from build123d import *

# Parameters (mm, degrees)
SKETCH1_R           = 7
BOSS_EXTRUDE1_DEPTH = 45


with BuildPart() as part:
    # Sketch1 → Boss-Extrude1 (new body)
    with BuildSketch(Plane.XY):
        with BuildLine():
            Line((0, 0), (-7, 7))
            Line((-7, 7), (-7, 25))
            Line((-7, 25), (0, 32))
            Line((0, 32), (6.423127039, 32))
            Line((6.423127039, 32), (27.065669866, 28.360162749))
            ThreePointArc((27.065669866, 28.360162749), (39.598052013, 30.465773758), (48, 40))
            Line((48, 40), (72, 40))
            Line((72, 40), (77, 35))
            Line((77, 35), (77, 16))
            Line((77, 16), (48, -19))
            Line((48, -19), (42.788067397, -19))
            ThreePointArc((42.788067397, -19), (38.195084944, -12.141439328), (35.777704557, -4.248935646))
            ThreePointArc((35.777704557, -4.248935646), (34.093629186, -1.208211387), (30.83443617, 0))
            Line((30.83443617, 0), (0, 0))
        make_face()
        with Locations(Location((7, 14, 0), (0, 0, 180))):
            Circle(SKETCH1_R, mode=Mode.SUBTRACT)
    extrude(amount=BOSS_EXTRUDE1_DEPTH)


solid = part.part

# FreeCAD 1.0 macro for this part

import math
import FreeCAD as App
import Part
import Sketcher

V = App.Vector
Q = App.Units.Quantity

doc = App.newDocument("Part")
body = doc.addObject("PartDesign::Body", "Body")

# Sketch on XY plane
sketch1 = body.newObject("Sketcher::SketchObject", "Sketch")
sketch1.AttachmentSupport = (doc.getObject("XY_Plane"), [""])
sketch1.MapMode = "FlatFace"
sketch1.addGeometry([
    Part.LineSegment(V(-7, 7, 0), V(0, 0, 0)),  # 0
    Part.LineSegment(V(0, 0, 0), V(31, 0, 0)),  # 1
    Part.ArcOfCircle(Part.Circle(V(31, -5, 0), V(0, 0, 1), 5), math.radians(9), math.radians(90)),  # 2
    Part.ArcOfCircle(Part.Circle(V(64, 0, 0), V(0, 0, 1), 28), math.radians(-171), math.radians(-138)),  # 3
    Part.LineSegment(V(43, -19, 0), V(48, -19, 0)),  # 4
    Part.LineSegment(V(48, -19, 0), V(77, 16, 0)),  # 5
    Part.LineSegment(V(77, 16, 0), V(77, 35, 0)),  # 6
    Part.LineSegment(V(77, 35, 0), V(72, 40, 0)),  # 7
    Part.LineSegment(V(72, 40, 0), V(48, 40, 0)),  # 8
    Part.ArcOfCircle(Part.Circle(V(30, 47, 0), V(0, 0, 1), 19), math.radians(-100), math.radians(-22)),  # 9
    Part.LineSegment(V(27, 28, 0), V(6, 32, 0)),  # 10
    Part.LineSegment(V(6, 32, 0), V(0, 32, 0)),  # 11
    Part.LineSegment(V(0, 32, 0), V(-7, 25, 0)),  # 12
    Part.LineSegment(V(-7, 25, 0), V(-7, 7, 0)),  # 13
    Part.Circle(V(7, 14, 0), V(0, 0, 1), 7),  # 14
], False)
sketch1.addConstraint([
    Sketcher.Constraint("Coincident", 0, 2, 1, 1),
    Sketcher.Constraint("Tangent", 1, 2, 2, 2),
    Sketcher.Constraint("Tangent", 2, 1, 3, 1),
    Sketcher.Constraint("Coincident", 3, 2, 4, 1),
    Sketcher.Constraint("Coincident", 4, 2, 5, 1),
    Sketcher.Constraint("Coincident", 5, 2, 6, 1),
    Sketcher.Constraint("Coincident", 6, 2, 7, 1),
    Sketcher.Constraint("Coincident", 7, 2, 8, 1),
    Sketcher.Constraint("Coincident", 8, 2, 9, 2),
    Sketcher.Constraint("Tangent", 9, 1, 10, 1),
    Sketcher.Constraint("Coincident", 10, 2, 11, 1),
    Sketcher.Constraint("Coincident", 11, 2, 12, 1),
    Sketcher.Constraint("Coincident", 12, 2, 13, 1),
    Sketcher.Constraint("Coincident", 13, 2, 0, 1),
    Sketcher.Constraint("Horizontal", 1),
    Sketcher.Constraint("Horizontal", 4),
    Sketcher.Constraint("Vertical", 6),
    Sketcher.Constraint("Horizontal", 8),
    Sketcher.Constraint("Horizontal", 11),
    Sketcher.Constraint("Vertical", 13),
    Sketcher.Constraint("Coincident", 0, 2, -1, 1),
    Sketcher.Constraint("PointOnObject", 3, 3, -1),
    Sketcher.Constraint("PointOnObject", 11, 2, -2),
    Sketcher.Constraint("Parallel", 0, 7),
    Sketcher.Constraint("Perpendicular", 7, 12),
    Sketcher.Constraint("Vertical", 4, 2, 8, 2),
    Sketcher.Constraint("Equal", 0, 12),
    Sketcher.Constraint("Diameter", 14, 14.0),
    Sketcher.Constraint("Radius", 2, 5.0),
    Sketcher.Constraint("Radius", 9, 19.0),
    Sketcher.Constraint("DistanceX", 8, 2, 8, 1, 24.0),
    Sketcher.Constraint("DistanceY", 6, 1, 6, 2, 19.0),
    Sketcher.Constraint("DistanceY", 13, 2, 13, 1, 18.0),
    Sketcher.Constraint("Angle", 10, Q("170 deg")),
    Sketcher.Constraint("DistanceX", -1, 1, 14, 3, 7.0),
    Sketcher.Constraint("DistanceY", -1, 1, 14, 3, 14.0),
    Sketcher.Constraint("DistanceY", 3, 2, -1, 1, 19.0),
    Sketcher.Constraint("DistanceX", -1, 1, 4, 2, 48.0),
    Sketcher.Constraint("DistanceX", -1, 1, 5, 2, 77.0),
    Sketcher.Constraint("DistanceY", -1, 1, 5, 2, 16.0),
    Sketcher.Constraint("DistanceY", -1, 1, 10, 2, 32.0),
    Sketcher.Constraint("Radius", 3, 28.286096),
    Sketcher.Constraint("DistanceX", 1, 1, 1, 2, 30.834436),
    Sketcher.Constraint("DistanceX", 11, 2, 11, 1, 6.423127),
])
pad1 = body.newObject("PartDesign::Pad", "Pad")
pad1.Profile = sketch1
pad1.Length = 45

doc.recompute()
